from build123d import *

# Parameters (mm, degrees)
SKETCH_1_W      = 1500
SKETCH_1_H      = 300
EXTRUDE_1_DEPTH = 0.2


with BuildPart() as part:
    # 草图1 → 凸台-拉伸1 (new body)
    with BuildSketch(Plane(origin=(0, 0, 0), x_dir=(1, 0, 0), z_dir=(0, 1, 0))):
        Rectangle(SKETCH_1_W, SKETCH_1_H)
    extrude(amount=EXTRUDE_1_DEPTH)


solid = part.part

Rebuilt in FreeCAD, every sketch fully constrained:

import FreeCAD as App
import Part
import Sketcher
from FreeCAD import Vector
Q = App.Units.Quantity


def add_polygon(sketch, points):
    """Adds a closed chain of lines whose ends are joined by coincident constraints."""
    first, n = sketch.GeometryCount, len(points)
    for a, b in zip(points, points[1:] + points[:1]):
        sketch.addGeometry(Part.LineSegment(App.Vector(*a, 0), App.Vector(*b, 0)), False)
    for i in range(n):
        sketch.addConstraint(Sketcher.Constraint("Coincident", first + i, 2, first + (i + 1) % n, 1))

doc = App.newDocument("Part")
body = doc.addObject("PartDesign::Body", "Body")

sketch1 = doc.addObject("Sketcher::SketchObject", "Sketch")
body.addObject(sketch1)
sketch1.AttachmentSupport = (doc.XZ_Plane, [""])
sketch1.MapMode = "FlatFace"
add_polygon(sketch1, [(-750, -150), (-750, 150), (750, 150), (750, -150)])
sketch1.addConstraint(Sketcher.Constraint("Vertical", 0))
sketch1.addConstraint(Sketcher.Constraint("Horizontal", 1))
sketch1.addConstraint(Sketcher.Constraint("Vertical", 2))
sketch1.addConstraint(Sketcher.Constraint("Horizontal", 3))
sketch1.addConstraint(Sketcher.Constraint("Symmetric", 0, 2, 2, 2, -1, 1))
sketch1.addConstraint(Sketcher.Constraint("DistanceX", 1, 1, 1, 2, Q("1500 mm")))
sketch1.addConstraint(Sketcher.Constraint("DistanceY", 0, 1, 0, 2, Q("300 mm")))
pad1 = doc.addObject("PartDesign::Pad", "Pad")
body.addObject(pad1)
pad1.Profile = sketch1
pad1.Length = 0.2
pad1.Reversed = True

doc.recompute()
